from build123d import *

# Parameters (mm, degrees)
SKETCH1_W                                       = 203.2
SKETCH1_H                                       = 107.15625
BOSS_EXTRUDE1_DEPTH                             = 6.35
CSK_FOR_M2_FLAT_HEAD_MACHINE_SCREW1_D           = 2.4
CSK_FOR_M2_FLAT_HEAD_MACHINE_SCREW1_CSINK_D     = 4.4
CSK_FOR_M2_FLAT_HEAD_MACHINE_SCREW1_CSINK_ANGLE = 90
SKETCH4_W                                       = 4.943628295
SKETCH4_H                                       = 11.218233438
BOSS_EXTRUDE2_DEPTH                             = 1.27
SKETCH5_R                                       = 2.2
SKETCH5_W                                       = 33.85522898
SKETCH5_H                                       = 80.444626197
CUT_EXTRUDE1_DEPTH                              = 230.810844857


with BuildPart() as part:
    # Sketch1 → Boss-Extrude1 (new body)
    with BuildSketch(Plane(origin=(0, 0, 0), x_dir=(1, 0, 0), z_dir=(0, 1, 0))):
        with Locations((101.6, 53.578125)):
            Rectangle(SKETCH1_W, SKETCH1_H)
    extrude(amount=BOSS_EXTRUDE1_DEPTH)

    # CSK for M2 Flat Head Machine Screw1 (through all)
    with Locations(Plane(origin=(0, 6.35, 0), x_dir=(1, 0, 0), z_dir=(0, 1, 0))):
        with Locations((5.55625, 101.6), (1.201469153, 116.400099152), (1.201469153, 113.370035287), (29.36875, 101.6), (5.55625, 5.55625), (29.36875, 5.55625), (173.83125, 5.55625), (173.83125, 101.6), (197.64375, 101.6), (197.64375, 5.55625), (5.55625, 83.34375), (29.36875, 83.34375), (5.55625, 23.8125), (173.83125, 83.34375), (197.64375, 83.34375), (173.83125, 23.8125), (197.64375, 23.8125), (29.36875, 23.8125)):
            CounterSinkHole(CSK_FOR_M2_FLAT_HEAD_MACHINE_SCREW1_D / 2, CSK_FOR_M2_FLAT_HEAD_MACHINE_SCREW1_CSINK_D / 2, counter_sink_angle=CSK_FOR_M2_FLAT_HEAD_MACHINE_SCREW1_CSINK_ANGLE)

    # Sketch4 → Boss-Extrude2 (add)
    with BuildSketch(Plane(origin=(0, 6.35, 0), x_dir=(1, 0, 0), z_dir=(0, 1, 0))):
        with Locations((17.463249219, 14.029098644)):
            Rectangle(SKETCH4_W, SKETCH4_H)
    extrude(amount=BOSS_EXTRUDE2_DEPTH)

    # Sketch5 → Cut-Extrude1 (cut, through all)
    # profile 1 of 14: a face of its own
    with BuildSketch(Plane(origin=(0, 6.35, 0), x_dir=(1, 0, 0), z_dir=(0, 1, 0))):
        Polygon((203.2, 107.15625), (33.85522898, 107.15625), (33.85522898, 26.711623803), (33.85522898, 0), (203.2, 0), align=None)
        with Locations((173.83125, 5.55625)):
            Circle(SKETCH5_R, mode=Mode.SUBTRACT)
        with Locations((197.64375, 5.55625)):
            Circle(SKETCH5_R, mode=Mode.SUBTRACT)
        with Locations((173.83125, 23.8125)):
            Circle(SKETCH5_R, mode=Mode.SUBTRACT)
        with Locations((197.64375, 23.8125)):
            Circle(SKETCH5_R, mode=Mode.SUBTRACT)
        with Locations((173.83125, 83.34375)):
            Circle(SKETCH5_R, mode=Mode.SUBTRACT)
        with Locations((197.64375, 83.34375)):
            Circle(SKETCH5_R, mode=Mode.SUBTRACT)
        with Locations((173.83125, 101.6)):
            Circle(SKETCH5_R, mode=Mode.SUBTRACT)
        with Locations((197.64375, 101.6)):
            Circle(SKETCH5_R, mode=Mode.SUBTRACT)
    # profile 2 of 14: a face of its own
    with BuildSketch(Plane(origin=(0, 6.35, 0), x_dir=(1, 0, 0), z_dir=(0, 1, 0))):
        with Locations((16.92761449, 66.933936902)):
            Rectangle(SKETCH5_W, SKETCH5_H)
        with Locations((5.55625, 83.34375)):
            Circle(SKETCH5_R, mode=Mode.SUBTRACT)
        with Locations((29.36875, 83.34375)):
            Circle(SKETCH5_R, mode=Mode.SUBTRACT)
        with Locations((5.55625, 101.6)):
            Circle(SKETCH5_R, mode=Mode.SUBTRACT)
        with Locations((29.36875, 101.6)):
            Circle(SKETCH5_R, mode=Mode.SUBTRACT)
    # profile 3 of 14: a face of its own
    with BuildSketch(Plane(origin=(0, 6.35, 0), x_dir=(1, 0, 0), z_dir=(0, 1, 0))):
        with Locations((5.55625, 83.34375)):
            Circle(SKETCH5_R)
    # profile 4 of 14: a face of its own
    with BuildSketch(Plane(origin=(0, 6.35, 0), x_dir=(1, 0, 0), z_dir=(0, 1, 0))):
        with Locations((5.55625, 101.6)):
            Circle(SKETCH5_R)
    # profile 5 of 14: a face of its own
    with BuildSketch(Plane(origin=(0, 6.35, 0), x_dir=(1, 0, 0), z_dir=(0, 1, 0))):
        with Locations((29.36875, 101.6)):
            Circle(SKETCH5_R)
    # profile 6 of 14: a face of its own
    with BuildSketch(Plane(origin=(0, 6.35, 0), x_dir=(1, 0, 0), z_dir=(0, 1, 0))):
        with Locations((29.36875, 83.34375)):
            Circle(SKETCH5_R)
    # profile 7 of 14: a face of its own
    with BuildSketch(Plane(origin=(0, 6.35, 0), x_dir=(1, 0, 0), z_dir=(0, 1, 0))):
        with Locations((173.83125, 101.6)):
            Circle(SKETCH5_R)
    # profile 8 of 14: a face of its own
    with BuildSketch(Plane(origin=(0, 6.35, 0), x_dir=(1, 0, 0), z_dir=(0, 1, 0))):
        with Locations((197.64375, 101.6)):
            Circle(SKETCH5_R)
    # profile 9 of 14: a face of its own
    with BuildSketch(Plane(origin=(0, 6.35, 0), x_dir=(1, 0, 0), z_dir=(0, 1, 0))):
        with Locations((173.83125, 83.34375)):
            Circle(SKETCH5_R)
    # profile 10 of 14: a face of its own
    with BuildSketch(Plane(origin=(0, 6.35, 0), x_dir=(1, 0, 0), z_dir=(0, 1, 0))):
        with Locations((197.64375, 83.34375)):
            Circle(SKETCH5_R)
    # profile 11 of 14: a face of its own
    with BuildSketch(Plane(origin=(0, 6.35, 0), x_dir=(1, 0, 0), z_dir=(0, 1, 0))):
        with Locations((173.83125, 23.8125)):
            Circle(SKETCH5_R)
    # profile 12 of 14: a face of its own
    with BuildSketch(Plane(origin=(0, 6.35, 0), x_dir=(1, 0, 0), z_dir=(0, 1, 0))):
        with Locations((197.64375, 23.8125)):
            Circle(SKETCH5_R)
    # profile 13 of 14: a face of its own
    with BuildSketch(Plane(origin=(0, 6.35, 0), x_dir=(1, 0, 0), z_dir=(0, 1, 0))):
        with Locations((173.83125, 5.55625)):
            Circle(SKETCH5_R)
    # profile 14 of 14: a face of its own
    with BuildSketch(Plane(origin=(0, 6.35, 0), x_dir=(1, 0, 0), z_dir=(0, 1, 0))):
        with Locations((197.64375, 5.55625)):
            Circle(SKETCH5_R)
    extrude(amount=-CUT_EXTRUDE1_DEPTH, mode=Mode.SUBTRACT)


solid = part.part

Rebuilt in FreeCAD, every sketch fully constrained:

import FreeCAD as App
import Part
import Sketcher
Q = App.Units.Quantity


def add_polygon(sketch, points):
    """Adds a closed chain of lines whose ends are joined by coincident constraints."""
    first, n = sketch.GeometryCount, len(points)
    for a, b in zip(points, points[1:] + points[:1]):
        sketch.addGeometry(Part.LineSegment(App.Vector(*a, 0), App.Vector(*b, 0)), False)
    for i in range(n):
        sketch.addConstraint(Sketcher.Constraint("Coincident", first + i, 2, first + (i + 1) % n, 1))

doc = App.newDocument("Part")
body = doc.addObject("PartDesign::Body", "Body")

# Sketch on XZ plane
sketch1 = body.newObject("Sketcher::SketchObject", "Sketch")
sketch1.AttachmentSupport = (doc.getObject("XZ_Plane"), [""])
sketch1.MapMode = "FlatFace"
add_polygon(sketch1, [(0, -107.15625), (0, 0), (203.2, 0), (203.2, -107.15625)])  # lines 0-3
sketch1.addConstraint([
    Sketcher.Constraint("Vertical", 0),
    Sketcher.Constraint("Horizontal", 1),
    Sketcher.Constraint("Vertical", 2),
    Sketcher.Constraint("Horizontal", 3),
    Sketcher.Constraint("Coincident", 0, 2, -1, 1),
    Sketcher.Constraint("DistanceX", 1, 1, 1, 2, Q("8 in")),
    Sketcher.Constraint("DistanceY", 0, 1, 0, 2, Q("4.21875 in")),
])
pad1 = body.newObject("PartDesign::Pad", "Pad")
pad1.Profile = sketch1
pad1.Length = Q("0.25 in")
pad1.Reversed = True

# Sketch on XZ plane
sketch2 = body.newObject("Sketcher::SketchObject", "Sketch001")
sketch2.AttachmentSupport = (doc.getObject("XZ_Plane"), [""])
sketch2.MapMode = "FlatFace"
sketch2.AttachmentOffset = App.Placement(App.Vector(0, 0, -0.25 * 25.4), App.Rotation())
sketch2.addGeometry([
    Part.Circle(App.Vector(5.55625, -101.6, 0), App.Vector(0, 0, 1), 1.2),  # 0
    Part.Circle(App.Vector(1.201469, -116.400099, 0), App.Vector(0, 0, 1), 1.2),  # 1
    Part.Circle(App.Vector(1.201469, -113.370035, 0), App.Vector(0, 0, 1), 1.2),  # 2
    Part.Circle(App.Vector(29.36875, -101.6, 0), App.Vector(0, 0, 1), 1.2),  # 3
    Part.Circle(App.Vector(5.55625, -5.55625, 0), App.Vector(0, 0, 1), 1.2),  # 4
    Part.Circle(App.Vector(29.36875, -5.55625, 0), App.Vector(0, 0, 1), 1.2),  # 5
    Part.Circle(App.Vector(173.83125, -5.55625, 0), App.Vector(0, 0, 1), 1.2),  # 6
    Part.Circle(App.Vector(173.83125, -101.6, 0), App.Vector(0, 0, 1), 1.2),  # 7
    Part.Circle(App.Vector(197.64375, -101.6, 0), App.Vector(0, 0, 1), 1.2),  # 8
    Part.Circle(App.Vector(197.64375, -5.55625, 0), App.Vector(0, 0, 1), 1.2),  # 9
    Part.Circle(App.Vector(5.55625, -83.34375, 0), App.Vector(0, 0, 1), 1.2),  # 10
    Part.Circle(App.Vector(29.36875, -83.34375, 0), App.Vector(0, 0, 1), 1.2),  # 11
    Part.Circle(App.Vector(5.55625, -23.8125, 0), App.Vector(0, 0, 1), 1.2),  # 12
    Part.Circle(App.Vector(173.83125, -83.34375, 0), App.Vector(0, 0, 1), 1.2),  # 13
    Part.Circle(App.Vector(197.64375, -83.34375, 0), App.Vector(0, 0, 1), 1.2),  # 14
    Part.Circle(App.Vector(173.83125, -23.8125, 0), App.Vector(0, 0, 1), 1.2),  # 15
    Part.Circle(App.Vector(197.64375, -23.8125, 0), App.Vector(0, 0, 1), 1.2),  # 16
    Part.Circle(App.Vector(29.36875, -23.8125, 0), App.Vector(0, 0, 1), 1.2),  # 17
], False)
sketch2.addConstraint([
    Sketcher.Constraint("Equal", 0, 1),
    Sketcher.Constraint("Equal", 1, 2),
    Sketcher.Constraint("Equal", 2, 3),
    Sketcher.Constraint("Equal", 3, 4),
    Sketcher.Constraint("Equal", 4, 5),
    Sketcher.Constraint("Equal", 5, 6),
    Sketcher.Constraint("Equal", 6, 7),
    Sketcher.Constraint("Equal", 7, 8),
    Sketcher.Constraint("Equal", 8, 9),
    Sketcher.Constraint("Equal", 9, 10),
    Sketcher.Constraint("Equal", 10, 11),
    Sketcher.Constraint("Equal", 11, 12),
    Sketcher.Constraint("Equal", 12, 13),
    Sketcher.Constraint("Equal", 13, 14),
    Sketcher.Constraint("Equal", 14, 15),
    Sketcher.Constraint("Equal", 15, 16),
    Sketcher.Constraint("Equal", 16, 17),
    Sketcher.Constraint("Horizontal", 0, 3, 3, 3),
    Sketcher.Constraint("Horizontal", 4, 3, 5, 3),
    Sketcher.Constraint("Horizontal", 5, 3, 6, 3),
    Sketcher.Constraint("Horizontal", 3, 3, 7, 3),
    Sketcher.Constraint("Horizontal", 7, 3, 8, 3),
    Sketcher.Constraint("Horizontal", 6, 3, 9, 3),
    Sketcher.Constraint("Horizontal", 10, 3, 11, 3),
    Sketcher.Constraint("Horizontal", 11, 3, 13, 3),
    Sketcher.Constraint("Horizontal", 13, 3, 14, 3),
    Sketcher.Constraint("Horizontal", 12, 3, 15, 3),
    Sketcher.Constraint("Horizontal", 15, 3, 16, 3),
    Sketcher.Constraint("Horizontal", 16, 3, 17, 3),
    Sketcher.Constraint("Vertical", 1, 3, 2, 3),
    Sketcher.Constraint("Vertical", 0, 3, 4, 3),
    Sketcher.Constraint("Vertical", 3, 3, 5, 3),
    Sketcher.Constraint("Vertical", 6, 3, 7, 3),
    Sketcher.Constraint("Vertical", 8, 3, 9, 3),
    Sketcher.Constraint("Vertical", 4, 3, 10, 3),
    Sketcher.Constraint("Vertical", 5, 3, 11, 3),
    Sketcher.Constraint("Vertical", 10, 3, 12, 3),
    Sketcher.Constraint("Vertical", 7, 3, 13, 3),
    Sketcher.Constraint("Vertical", 9, 3, 14, 3),
    Sketcher.Constraint("Vertical", 13, 3, 15, 3),
    Sketcher.Constraint("Vertical", 14, 3, 16, 3),
    Sketcher.Constraint("Vertical", 11, 3, 17, 3),
    Sketcher.Constraint("DistanceY", 0, 3, -1, 1, Q("4 in")),
    Sketcher.Constraint("Diameter", 0, Q("2.4 mm")),
    Sketcher.Constraint("DistanceX", -1, 1, 0, 3, Q("0.21875 in")),
    Sketcher.Constraint("DistanceX", -1, 1, 3, 3, Q("1.15625 in")),
    Sketcher.Constraint("DistanceY", 4, 3, -1, 1, Q("0.21875 in")),
    Sketcher.Constraint("DistanceX", -1, 1, 6, 3, Q("6.84375 in")),
    Sketcher.Constraint("DistanceX", -1, 1, 8, 3, Q("7.78125 in")),
    Sketcher.Constraint("DistanceY", 10, 3, -1, 1, Q("3.28125 in")),
    Sketcher.Constraint("DistanceY", 12, 3, -1, 1, Q("0.9375 in")),
    Sketcher.Constraint("DistanceY", 1, 3, -1, 1, Q("116.400099 mm")),
    Sketcher.Constraint("DistanceX", -1, 1, 1, 3, Q("1.201469 mm")),
    Sketcher.Constraint("DistanceY", 2, 3, -1, 1, Q("113.370035 mm")),
])
doc.recompute()
hole = body.newObject("PartDesign::Hole", "Hole")
hole.Profile = sketch2
hole.ThreadType = "None"
hole.Diameter = 2.4
hole.DepthType = "ThroughAll"
hole.HoleCutType = "Countersink"
hole.HoleCutDiameter = 4.4
hole.HoleCutCountersinkAngle = 90
hole.Reversed = True

# Sketch on XZ plane
sketch3 = body.newObject("Sketcher::SketchObject", "Sketch002")
sketch3.AttachmentSupport = (doc.getObject("XZ_Plane"), [""])
sketch3.MapMode = "FlatFace"
sketch3.AttachmentOffset = App.Placement(App.Vector(0, 0, -0.25 * 25.4), App.Rotation())
add_polygon(sketch3, [(14.991435, -19.638215), (14.991435, -8.419982), (19.935063, -8.419982), (19.935063, -19.638215)])  # lines 0-3
sketch3.addConstraint([
    Sketcher.Constraint("Vertical", 0),
    Sketcher.Constraint("Horizontal", 1),
    Sketcher.Constraint("Vertical", 2),
    Sketcher.Constraint("Horizontal", 3),
    Sketcher.Constraint("DistanceX", 1, 1, 1, 2, Q("4.943628 mm")),
    Sketcher.Constraint("DistanceY", 0, 1, 0, 2, Q("11.218233 mm")),
    Sketcher.Constraint("DistanceY", 0, 2, -1, 1, Q("8.419982 mm")),
    Sketcher.Constraint("DistanceX", -1, 1, 0, 2, Q("14.991435 mm")),
])
pad2 = body.newObject("PartDesign::Pad", "Pad001")
pad2.Profile = sketch3
pad2.Length = Q("0.05 in")
pad2.Reversed = True

# Sketch on XZ plane
sketch4 = body.newObject("Sketcher::SketchObject", "Sketch003")
sketch4.AttachmentSupport = (doc.getObject("XZ_Plane"), [""])
sketch4.MapMode = "FlatFace"
sketch4.AttachmentOffset = App.Placement(App.Vector(0, 0, -0.25 * 25.4), App.Rotation())
add_polygon(sketch4, [(203.2, -107.15625), (0, -107.15625), (0, -26.711624), (33.855229, -26.711624), (33.855229, 0), (203.2, 0)])  # lines 0-5
sketch4.addConstraint([
    Sketcher.Constraint("Horizontal", 0),
    Sketcher.Constraint("Vertical", 1),
    Sketcher.Constraint("Horizontal", 2),
    Sketcher.Constraint("Vertical", 3),
    Sketcher.Constraint("Horizontal", 4),
    Sketcher.Constraint("Vertical", 5),
    Sketcher.Constraint("PointOnObject", 0, 2, -2),
    Sketcher.Constraint("PointOnObject", 3, 2, -1),
    Sketcher.Constraint("DistanceX", 0, 2, 0, 1, Q("8 in")),
    Sketcher.Constraint("DistanceY", 5, 2, 5, 1, Q("4.21875 in")),
    Sketcher.Constraint("DistanceX", 2, 1, 2, 2, Q("33.855229 mm")),
    Sketcher.Constraint("DistanceY", 1, 1, 1, 2, Q("80.444626 mm")),
])
pocket1 = body.newObject("PartDesign::Pocket", "Pocket")
pocket1.Profile = sketch4
pocket1.Length = 230.810845
pocket1.Reversed = True

doc.recompute()
